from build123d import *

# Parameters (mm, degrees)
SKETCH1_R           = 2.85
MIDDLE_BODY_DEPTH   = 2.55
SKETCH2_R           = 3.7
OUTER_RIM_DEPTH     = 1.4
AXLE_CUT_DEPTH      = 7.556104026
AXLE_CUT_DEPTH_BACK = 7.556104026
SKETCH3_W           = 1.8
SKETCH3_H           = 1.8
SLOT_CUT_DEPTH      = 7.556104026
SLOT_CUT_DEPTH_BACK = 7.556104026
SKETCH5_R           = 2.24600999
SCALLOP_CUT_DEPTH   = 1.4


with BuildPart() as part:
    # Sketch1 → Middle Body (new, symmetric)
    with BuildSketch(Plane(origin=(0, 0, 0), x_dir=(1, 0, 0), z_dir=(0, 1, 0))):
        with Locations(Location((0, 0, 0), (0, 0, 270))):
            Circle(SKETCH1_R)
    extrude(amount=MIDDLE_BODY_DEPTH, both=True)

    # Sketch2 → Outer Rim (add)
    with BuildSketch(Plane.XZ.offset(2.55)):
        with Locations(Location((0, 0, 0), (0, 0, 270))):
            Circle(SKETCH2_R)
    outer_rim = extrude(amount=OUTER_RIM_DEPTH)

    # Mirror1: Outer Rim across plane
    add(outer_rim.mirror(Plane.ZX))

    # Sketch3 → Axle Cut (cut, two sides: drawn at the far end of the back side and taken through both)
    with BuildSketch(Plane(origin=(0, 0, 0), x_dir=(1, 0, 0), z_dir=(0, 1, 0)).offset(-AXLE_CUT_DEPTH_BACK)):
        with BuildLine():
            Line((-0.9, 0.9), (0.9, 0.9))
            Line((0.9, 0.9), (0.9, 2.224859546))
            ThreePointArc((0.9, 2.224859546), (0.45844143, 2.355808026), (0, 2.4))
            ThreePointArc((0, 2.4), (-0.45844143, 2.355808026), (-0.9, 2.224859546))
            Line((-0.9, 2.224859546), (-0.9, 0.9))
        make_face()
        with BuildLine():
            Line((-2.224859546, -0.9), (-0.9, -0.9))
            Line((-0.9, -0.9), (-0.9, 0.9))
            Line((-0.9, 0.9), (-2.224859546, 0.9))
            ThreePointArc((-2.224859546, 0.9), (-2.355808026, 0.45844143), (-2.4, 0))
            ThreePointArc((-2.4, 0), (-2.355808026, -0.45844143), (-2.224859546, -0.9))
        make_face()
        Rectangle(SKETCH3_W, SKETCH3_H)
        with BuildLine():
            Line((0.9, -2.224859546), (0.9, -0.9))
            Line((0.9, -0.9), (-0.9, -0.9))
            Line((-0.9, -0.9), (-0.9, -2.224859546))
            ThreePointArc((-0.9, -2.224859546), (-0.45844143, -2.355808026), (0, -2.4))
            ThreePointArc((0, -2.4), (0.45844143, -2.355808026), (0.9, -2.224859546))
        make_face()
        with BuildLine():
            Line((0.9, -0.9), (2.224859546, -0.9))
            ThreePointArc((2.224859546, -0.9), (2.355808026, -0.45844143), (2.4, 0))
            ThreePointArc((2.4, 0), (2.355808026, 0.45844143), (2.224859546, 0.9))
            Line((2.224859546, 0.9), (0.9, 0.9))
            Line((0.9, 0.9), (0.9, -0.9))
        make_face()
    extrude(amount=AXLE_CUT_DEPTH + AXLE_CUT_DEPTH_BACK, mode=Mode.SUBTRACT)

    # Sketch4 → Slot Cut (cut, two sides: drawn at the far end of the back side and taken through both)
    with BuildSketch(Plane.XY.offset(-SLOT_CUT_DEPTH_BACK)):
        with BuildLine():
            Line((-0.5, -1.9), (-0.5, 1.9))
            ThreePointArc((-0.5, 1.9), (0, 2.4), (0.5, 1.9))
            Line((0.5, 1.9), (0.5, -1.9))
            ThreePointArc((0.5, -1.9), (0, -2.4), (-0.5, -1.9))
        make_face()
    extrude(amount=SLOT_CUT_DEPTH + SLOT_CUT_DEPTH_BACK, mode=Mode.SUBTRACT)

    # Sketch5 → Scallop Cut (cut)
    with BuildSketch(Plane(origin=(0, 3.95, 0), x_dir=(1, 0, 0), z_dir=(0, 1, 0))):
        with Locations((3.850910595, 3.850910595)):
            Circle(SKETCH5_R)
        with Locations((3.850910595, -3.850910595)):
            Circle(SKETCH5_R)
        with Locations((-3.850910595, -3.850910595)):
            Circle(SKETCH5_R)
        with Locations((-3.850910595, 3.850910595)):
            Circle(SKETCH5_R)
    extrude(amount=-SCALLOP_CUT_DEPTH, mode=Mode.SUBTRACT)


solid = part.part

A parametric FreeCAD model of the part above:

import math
import FreeCAD as App
import Part
import Sketcher

doc = App.newDocument("Part")
params = doc.addObject("Spreadsheet::Sheet", "Params")
for row, (alias, value) in enumerate([
    ("sketch1_diameter", "5.7 mm"),
    ("pad1_length", "5.1 mm"),
    ("sketch2_diameter", "7.4 mm"),
    ("pad2_length", "1.4 mm"),
    ("sketch3_radius", "2.4 mm"),
    ("sketch4_radius", "0.5 mm"),
    ("sketch4_height", "3.8 mm"),
    ("pocket3_length", "1.4 mm"),
], start=1):
    params.set(f"A{row}", alias)
    params.set(f"B{row}", "=" + value)
    params.setAlias(f"B{row}", alias)

body = doc.addObject("PartDesign::Body", "Body")

sketch1 = doc.addObject("Sketcher::SketchObject", "Sketch")
body.addObject(sketch1)
sketch1.AttachmentSupport = (doc.XZ_Plane, [""])
sketch1.MapMode = "FlatFace"
sketch1.addGeometry(Part.Circle(App.Vector(0, 0, 0), App.Vector(0, 0, 1), 2.9), False)
sketch1.addConstraint([
    Sketcher.Constraint("Coincident", 0, 3, -1, 1),
    Sketcher.Constraint("Diameter", 0, 5.7),
])
sketch1.setExpression("Constraints[1]", "Params.sketch1_diameter")
pad1 = doc.addObject("PartDesign::Pad", "Pad")
body.addObject(pad1)
pad1.Profile = sketch1
pad1.setExpression("Length", "Params.pad1_length")
pad1.Midplane = True

sketch2 = doc.addObject("Sketcher::SketchObject", "Sketch001")
body.addObject(sketch2)
sketch2.AttachmentSupport = (doc.XZ_Plane, [""])
sketch2.MapMode = "FlatFace"
sketch2.AttachmentOffset = App.Placement(App.Vector(0, 0, 2.55), App.Rotation())
sketch2.addGeometry(Part.Circle(App.Vector(0, 0, 0), App.Vector(0, 0, 1), 3.7), False)
sketch2.addConstraint([
    Sketcher.Constraint("Coincident", 0, 3, -1, 1),
    Sketcher.Constraint("Diameter", 0, 7.4),
])
sketch2.setExpression("Constraints[1]", "Params.sketch2_diameter")
pad2 = doc.addObject("PartDesign::Pad", "Pad001")
body.addObject(pad2)
pad2.Profile = sketch2
pad2.setExpression("Length", "Params.pad2_length")
doc.recompute()

mirrored = doc.addObject("PartDesign::Mirrored", "Mirrored")
body.addObject(mirrored)
mirrored.Originals = [pad2]
mirrored.MirrorPlane = (doc.XZ_Plane, [""])
body.Tip = mirrored

sketch3 = doc.addObject("Sketcher::SketchObject", "Sketch002")
body.addObject(sketch3)
sketch3.AttachmentSupport = (doc.XZ_Plane, [""])
sketch3.MapMode = "FlatFace"
sketch3.addGeometry([
    Part.ArcOfCircle(Part.Circle(App.Vector(0, 0, 0), App.Vector(0, 0, 1), 2.4), math.radians(-90), math.radians(-68)),
    Part.ArcOfCircle(Part.Circle(App.Vector(0, 0, 0), App.Vector(0, 0, 1), 2.4), math.radians(-112), math.radians(-90)),
    Part.LineSegment(App.Vector(-0.9, -2.2, 0), App.Vector(-0.9, -0.9, 0)),
    Part.LineSegment(App.Vector(-0.9, -0.9, 0), App.Vector(-2.2, -0.9, 0)),
    Part.ArcOfCircle(Part.Circle(App.Vector(0, 0, 0), App.Vector(0, 0, 1), 2.4), math.radians(180), math.radians(202)),
    Part.ArcOfCircle(Part.Circle(App.Vector(0, 0, 0), App.Vector(0, 0, 1), 2.4), math.radians(158), math.radians(180)),
    Part.LineSegment(App.Vector(-2.2, 0.9, 0), App.Vector(-0.9, 0.9, 0)),
    Part.LineSegment(App.Vector(-0.9, 0.9, 0), App.Vector(-0.9, 2.2, 0)),
    Part.ArcOfCircle(Part.Circle(App.Vector(0, 0, 0), App.Vector(0, 0, 1), 2.4), math.radians(90), math.radians(112)),
    Part.ArcOfCircle(Part.Circle(App.Vector(0, 0, 0), App.Vector(0, 0, 1), 2.4), math.radians(68), math.radians(90)),
    Part.LineSegment(App.Vector(0.9, 2.2, 0), App.Vector(0.9, 0.9, 0)),
    Part.LineSegment(App.Vector(0.9, 0.9, 0), App.Vector(2.2, 0.9, 0)),
    Part.ArcOfCircle(Part.Circle(App.Vector(0, 0, 0), App.Vector(0, 0, 1), 2.4), math.radians(0), math.radians(22)),
    Part.ArcOfCircle(Part.Circle(App.Vector(0, 0, 0), App.Vector(0, 0, 1), 2.4), math.radians(-22), math.radians(0)),
    Part.LineSegment(App.Vector(2.2, -0.9, 0), App.Vector(0.9, -0.9, 0)),
    Part.LineSegment(App.Vector(0.9, -0.9, 0), App.Vector(0.9, -2.2, 0)),
], False)
sketch3.addConstraint([
    Sketcher.Constraint("Tangent", 0, 1, 1, 2),
    Sketcher.Constraint("Coincident", 1, 1, 2, 1),
    Sketcher.Constraint("Coincident", 2, 2, 3, 1),
    Sketcher.Constraint("Coincident", 3, 2, 4, 2),
    Sketcher.Constraint("Tangent", 4, 1, 5, 2),
    Sketcher.Constraint("Coincident", 5, 1, 6, 1),
    Sketcher.Constraint("Coincident", 6, 2, 7, 1),
    Sketcher.Constraint("Coincident", 7, 2, 8, 2),
    Sketcher.Constraint("Tangent", 8, 1, 9, 2),
    Sketcher.Constraint("Coincident", 9, 1, 10, 1),
    Sketcher.Constraint("Coincident", 10, 2, 11, 1),
    Sketcher.Constraint("Coincident", 11, 2, 12, 2),
    Sketcher.Constraint("Tangent", 12, 1, 13, 2),
    Sketcher.Constraint("Coincident", 13, 1, 14, 1),
    Sketcher.Constraint("Coincident", 14, 2, 15, 1),
    Sketcher.Constraint("Coincident", 15, 2, 0, 2),
    Sketcher.Constraint("Vertical", 2),
    Sketcher.Constraint("Horizontal", 3),
    Sketcher.Constraint("Horizontal", 6),
    Sketcher.Constraint("Vertical", 7),
    Sketcher.Constraint("Vertical", 10),
    Sketcher.Constraint("Horizontal", 11),
    Sketcher.Constraint("Horizontal", 14),
    Sketcher.Constraint("Vertical", 15),
    Sketcher.Constraint("Coincident", 0, 3, -1, 1),
    Sketcher.Constraint("Coincident", 4, 3, -1, 1),
    Sketcher.Constraint("Coincident", 8, 3, -1, 1),
    Sketcher.Constraint("Coincident", 12, 3, -1, 1),
    Sketcher.Constraint("Equal", 0, 1),
    Sketcher.Constraint("Equal", 1, 4),
    Sketcher.Constraint("Equal", 4, 5),
    Sketcher.Constraint("Equal", 5, 8),
    Sketcher.Constraint("Equal", 8, 9),
    Sketcher.Constraint("Equal", 9, 12),
    Sketcher.Constraint("Equal", 12, 13),
    Sketcher.Constraint("Symmetric", 2, 2, 10, 2, -1, 1),
    Sketcher.Constraint("Symmetric", 6, 2, 14, 2, -1, 1),
    Sketcher.Constraint("Symmetric", 6, 2, 10, 2, -2),
    Sketcher.Constraint("PointOnObject", 0, 1, -2),
    Sketcher.Constraint("PointOnObject", 4, 1, -1),
    Sketcher.Constraint("PointOnObject", 8, 1, -2),
    Sketcher.Constraint("PointOnObject", 12, 1, -1),
    Sketcher.Constraint("Equal", 14, 2),
    Sketcher.Constraint("Radius", 0, 2.4),
    Sketcher.Constraint("DistanceX", 1, 1, -1, 1, 0.9),
])
sketch3.setExpression("Constraints[43]", "Params.sketch3_radius")
pocket1 = doc.addObject("PartDesign::Pocket", "Pocket")
body.addObject(pocket1)
pocket1.Profile = sketch3
pocket1.Type = "ThroughAll"
pocket1.Midplane = True

sketch4 = doc.addObject("Sketcher::SketchObject", "Sketch003")
body.addObject(sketch4)
sketch4.AttachmentSupport = (doc.XY_Plane, [""])
sketch4.MapMode = "FlatFace"
sketch4.addGeometry([
    Part.LineSegment(App.Vector(-0.5, 1.9, 0), App.Vector(-0.5, -1.9, 0)),
    Part.ArcOfCircle(Part.Circle(App.Vector(0, -1.9, 0), App.Vector(0, 0, 1), 0.5), math.radians(180), math.radians(360)),
    Part.LineSegment(App.Vector(0.5, -1.9, 0), App.Vector(0.5, 1.9, 0)),
    Part.ArcOfCircle(Part.Circle(App.Vector(0, 1.9, 0), App.Vector(0, 0, 1), 0.5), math.radians(0), math.radians(180)),
], False)
sketch4.addConstraint([
    Sketcher.Constraint("Tangent", 0, 2, 1, 1),
    Sketcher.Constraint("Tangent", 1, 2, 2, 1),
    Sketcher.Constraint("Tangent", 2, 2, 3, 1),
    Sketcher.Constraint("Tangent", 3, 2, 0, 1),
    Sketcher.Constraint("Vertical", 0),
    Sketcher.Constraint("Vertical", 2),
    Sketcher.Constraint("Symmetric", 1, 3, 3, 3, -1, 1),
    Sketcher.Constraint("Radius", 1, 0.5),
    Sketcher.Constraint("DistanceY", 0, 2, 0, 1, 3.8),
])
sketch4.setExpression("Constraints[7]", "Params.sketch4_radius")
sketch4.setExpression("Constraints[8]", "Params.sketch4_height")
pocket2 = doc.addObject("PartDesign::Pocket", "Pocket001")
body.addObject(pocket2)
pocket2.Profile = sketch4
pocket2.Type = "ThroughAll"
pocket2.Midplane = True

sketch5 = doc.addObject("Sketcher::SketchObject", "Sketch004")
body.addObject(sketch5)
sketch5.AttachmentSupport = (doc.XZ_Plane, [""])
sketch5.MapMode = "FlatFace"
sketch5.AttachmentOffset = App.Placement(App.Vector(0, 0, -3.95), App.Rotation())
sketch5.addGeometry([
    Part.Circle(App.Vector(3.9, -3.9, 0), App.Vector(0, 0, 1), 2.2),
    Part.Circle(App.Vector(3.9, 3.9, 0), App.Vector(0, 0, 1), 2.2),
    Part.Circle(App.Vector(-3.9, 3.9, 0), App.Vector(0, 0, 1), 2.2),
    Part.Circle(App.Vector(-3.9, -3.9, 0), App.Vector(0, 0, 1), 2.2),
], False)
sketch5.addConstraint([
    Sketcher.Constraint("Equal", 0, 1),
    Sketcher.Constraint("Equal", 1, 2),
    Sketcher.Constraint("Equal", 2, 3),
    Sketcher.Constraint("Symmetric", 0, 3, 2, 3, -1, 1),
    Sketcher.Constraint("Symmetric", 1, 3, 3, 3, -1, 1),
    Sketcher.Constraint("Symmetric", 1, 3, 2, 3, -2),
    Sketcher.Constraint("Diameter", 0, 4.49202),
    Sketcher.Constraint("DistanceX", -1, 1, 0, 3, 3.850911),
    Sketcher.Constraint("DistanceY", 0, 3, -1, 1, 3.850911),
])
pocket3 = doc.addObject("PartDesign::Pocket", "Pocket002")
body.addObject(pocket3)
pocket3.Profile = sketch5
pocket3.setExpression("Length", "Params.pocket3_length")
pocket3.Reversed = True

doc.recompute()
